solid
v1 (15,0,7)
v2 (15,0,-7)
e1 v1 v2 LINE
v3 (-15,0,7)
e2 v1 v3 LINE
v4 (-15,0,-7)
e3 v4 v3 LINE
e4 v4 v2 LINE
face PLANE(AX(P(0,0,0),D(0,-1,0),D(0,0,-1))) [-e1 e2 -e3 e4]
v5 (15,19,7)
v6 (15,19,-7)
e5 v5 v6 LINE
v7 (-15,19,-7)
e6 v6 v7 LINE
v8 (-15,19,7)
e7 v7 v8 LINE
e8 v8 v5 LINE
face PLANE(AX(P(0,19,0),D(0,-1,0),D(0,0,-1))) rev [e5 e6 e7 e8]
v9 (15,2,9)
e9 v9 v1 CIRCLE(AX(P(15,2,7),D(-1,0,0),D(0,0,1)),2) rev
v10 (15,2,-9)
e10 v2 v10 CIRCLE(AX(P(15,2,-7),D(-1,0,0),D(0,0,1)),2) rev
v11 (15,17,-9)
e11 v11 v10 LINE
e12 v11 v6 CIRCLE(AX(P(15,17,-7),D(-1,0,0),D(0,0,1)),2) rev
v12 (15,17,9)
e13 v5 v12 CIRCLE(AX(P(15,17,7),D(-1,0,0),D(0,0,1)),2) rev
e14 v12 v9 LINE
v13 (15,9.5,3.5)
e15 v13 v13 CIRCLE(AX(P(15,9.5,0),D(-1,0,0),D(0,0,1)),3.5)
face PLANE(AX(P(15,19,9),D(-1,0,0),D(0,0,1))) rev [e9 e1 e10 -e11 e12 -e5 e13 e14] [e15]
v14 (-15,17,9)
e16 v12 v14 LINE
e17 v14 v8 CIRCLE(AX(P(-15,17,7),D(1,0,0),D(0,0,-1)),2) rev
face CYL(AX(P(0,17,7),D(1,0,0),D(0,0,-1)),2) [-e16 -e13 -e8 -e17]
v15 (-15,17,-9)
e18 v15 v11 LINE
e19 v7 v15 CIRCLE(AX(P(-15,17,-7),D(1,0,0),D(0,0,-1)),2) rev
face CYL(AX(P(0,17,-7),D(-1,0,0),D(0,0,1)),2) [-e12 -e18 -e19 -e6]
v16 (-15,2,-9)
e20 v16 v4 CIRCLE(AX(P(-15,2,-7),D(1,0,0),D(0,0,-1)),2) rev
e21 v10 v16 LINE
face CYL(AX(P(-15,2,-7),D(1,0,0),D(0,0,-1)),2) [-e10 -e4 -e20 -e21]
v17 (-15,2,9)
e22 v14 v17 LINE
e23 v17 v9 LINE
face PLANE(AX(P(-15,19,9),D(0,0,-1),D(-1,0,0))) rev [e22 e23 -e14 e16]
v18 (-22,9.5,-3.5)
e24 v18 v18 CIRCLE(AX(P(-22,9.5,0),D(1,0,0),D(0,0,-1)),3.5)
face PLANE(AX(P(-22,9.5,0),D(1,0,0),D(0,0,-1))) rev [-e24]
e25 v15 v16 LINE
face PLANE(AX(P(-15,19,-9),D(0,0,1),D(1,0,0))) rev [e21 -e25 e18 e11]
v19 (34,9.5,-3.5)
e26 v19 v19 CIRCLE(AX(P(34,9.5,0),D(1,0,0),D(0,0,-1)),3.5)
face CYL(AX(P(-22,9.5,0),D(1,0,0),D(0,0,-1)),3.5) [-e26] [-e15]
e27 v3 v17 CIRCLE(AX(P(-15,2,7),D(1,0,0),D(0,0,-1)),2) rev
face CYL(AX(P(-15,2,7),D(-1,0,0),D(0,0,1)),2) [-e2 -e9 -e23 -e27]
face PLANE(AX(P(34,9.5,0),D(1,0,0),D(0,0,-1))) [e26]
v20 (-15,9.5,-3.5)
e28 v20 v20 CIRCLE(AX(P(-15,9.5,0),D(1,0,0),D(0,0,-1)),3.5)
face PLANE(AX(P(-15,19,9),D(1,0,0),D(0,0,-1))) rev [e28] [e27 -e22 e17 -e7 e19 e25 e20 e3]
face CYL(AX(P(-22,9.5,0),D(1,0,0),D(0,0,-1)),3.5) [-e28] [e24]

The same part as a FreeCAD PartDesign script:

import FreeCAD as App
import Part
import Sketcher

V = App.Vector


def edges_at(feature, points):
    """Names of the edges that pass closest to the given points."""
    edges = feature.Shape.Edges
    near = lambda p: min(range(len(edges)), key=lambda i: edges[i].distToShape(Part.Vertex(*p))[0])
    return sorted({f"Edge{near(p) + 1}" for p in points})

doc = App.newDocument("Part")
body = doc.addObject("PartDesign::Body", "Body")

# Sketch on XZ plane
sketch1 = body.newObject("Sketcher::SketchObject", "Sketch")
sketch1.AttachmentSupport = (doc.getObject("XZ_Plane"), [""])
sketch1.MapMode = "FlatFace"
sketch1.addGeometry(Part.LineSegment(V(-15, -9, 0), V(-15, 9, 0)), False)
sketch1.addGeometry(Part.LineSegment(V(-15, 9, 0), V(15, 9, 0)), False)
sketch1.addGeometry(Part.LineSegment(V(15, 9, 0), V(15, -9, 0)), False)
sketch1.addGeometry(Part.LineSegment(V(15, -9, 0), V(-15, -9, 0)), False)
sketch1.addConstraint(Sketcher.Constraint("Coincident", 0, 2, 1, 1))
sketch1.addConstraint(Sketcher.Constraint("Coincident", 1, 2, 2, 1))
sketch1.addConstraint(Sketcher.Constraint("Coincident", 2, 2, 3, 1))
sketch1.addConstraint(Sketcher.Constraint("Coincident", 3, 2, 0, 1))
sketch1.addConstraint(Sketcher.Constraint("Vertical", 0))
sketch1.addConstraint(Sketcher.Constraint("Horizontal", 1))
sketch1.addConstraint(Sketcher.Constraint("Vertical", 2))
sketch1.addConstraint(Sketcher.Constraint("Horizontal", 3))
sketch1.addConstraint(Sketcher.Constraint("Symmetric", 0, 2, 2, 2, -1, 1))
sketch1.addConstraint(Sketcher.Constraint("DistanceX", 1, 1, 1, 2, 30.0))
sketch1.addConstraint(Sketcher.Constraint("DistanceY", 0, 1, 0, 2, 18.0))
pad1 = body.newObject("PartDesign::Pad", "Pad")
pad1.Profile = sketch1
pad1.Length = 19
pad1.Reversed = True

# Sketch on YZ plane
sketch2 = body.newObject("Sketcher::SketchObject", "Sketch001")
sketch2.AttachmentSupport = (doc.getObject("YZ_Plane"), [""])
sketch2.MapMode = "FlatFace"
sketch2.AttachmentOffset = App.Placement(V(0, 0, 15), App.Rotation())
sketch2.addGeometry(Part.Circle(V(9.5, 0, 0), V(0, 0, 1), 3.5), False)
sketch2.addConstraint(Sketcher.Constraint("PointOnObject", 0, 3, -1))
sketch2.addConstraint(Sketcher.Constraint("Diameter", 0, 7.0))
sketch2.addConstraint(Sketcher.Constraint("DistanceX", -1, 1, 0, 3, 9.5))
pad2 = body.newObject("PartDesign::Pad", "Pad001")
pad2.Profile = sketch2
pad2.Type = "TwoLengths"
pad2.Length = 19
pad2.Length2 = 37
doc.recompute()

fillet = body.newObject("PartDesign::Fillet", "Fillet")
fillet.Base = (pad2, edges_at(pad2, [
    (0, 19, 9),
    (0, 0, 9),
    (0, 0, -9),
    (0, 19, -9),
]))
fillet.Radius = 2

doc.recompute()
